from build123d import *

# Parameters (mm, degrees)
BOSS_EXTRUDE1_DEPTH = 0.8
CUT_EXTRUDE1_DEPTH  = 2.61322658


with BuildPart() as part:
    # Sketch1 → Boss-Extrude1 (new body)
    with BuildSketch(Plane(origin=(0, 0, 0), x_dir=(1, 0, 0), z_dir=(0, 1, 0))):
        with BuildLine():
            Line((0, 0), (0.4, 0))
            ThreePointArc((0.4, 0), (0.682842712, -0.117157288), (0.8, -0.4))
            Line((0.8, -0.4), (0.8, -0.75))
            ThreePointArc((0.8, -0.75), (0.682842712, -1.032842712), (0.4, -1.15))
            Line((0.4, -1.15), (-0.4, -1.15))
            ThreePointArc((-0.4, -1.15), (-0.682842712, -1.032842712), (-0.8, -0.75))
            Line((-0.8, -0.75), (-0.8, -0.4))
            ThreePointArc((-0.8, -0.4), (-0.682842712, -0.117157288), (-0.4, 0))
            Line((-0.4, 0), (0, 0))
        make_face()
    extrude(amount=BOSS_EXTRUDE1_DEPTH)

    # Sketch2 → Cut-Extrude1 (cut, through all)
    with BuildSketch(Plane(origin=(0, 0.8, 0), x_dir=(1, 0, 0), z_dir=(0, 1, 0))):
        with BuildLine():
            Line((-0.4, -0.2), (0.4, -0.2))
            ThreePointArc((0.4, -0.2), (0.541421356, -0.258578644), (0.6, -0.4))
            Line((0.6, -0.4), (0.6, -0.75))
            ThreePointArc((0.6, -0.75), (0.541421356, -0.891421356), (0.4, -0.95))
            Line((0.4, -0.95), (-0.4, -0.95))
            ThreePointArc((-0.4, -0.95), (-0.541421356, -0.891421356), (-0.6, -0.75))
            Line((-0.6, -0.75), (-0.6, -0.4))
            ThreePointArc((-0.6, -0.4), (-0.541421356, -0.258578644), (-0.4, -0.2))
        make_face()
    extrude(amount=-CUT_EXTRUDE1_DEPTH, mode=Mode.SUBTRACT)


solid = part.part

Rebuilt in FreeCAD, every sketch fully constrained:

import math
import FreeCAD as App
import Part
import Sketcher

V = App.Vector

doc = App.newDocument("Part")
body = doc.addObject("PartDesign::Body", "Body")

sketch1 = doc.addObject("Sketcher::SketchObject", "Sketch")
body.addObject(sketch1)
sketch1.AttachmentSupport = (doc.XZ_Plane, [""])
sketch1.MapMode = "FlatFace"
sketch1.addGeometry([
    Part.ArcOfCircle(Part.Circle(V(0.4, 0.4, 0), V(0, 0, 1), 0.4), math.radians(-90), math.radians(0)),
    Part.LineSegment(V(0.4, 0, 0), V(-0.4, 0, 0)),
    Part.ArcOfCircle(Part.Circle(V(-0.4, 0.4, 0), V(0, 0, 1), 0.4), math.radians(-180), math.radians(-90)),
    Part.LineSegment(V(-0.8, 0.4, 0), V(-0.8, 0.75, 0)),
    Part.ArcOfCircle(Part.Circle(V(-0.4, 0.75, 0), V(0, 0, 1), 0.4), math.radians(90), math.radians(180)),
    Part.LineSegment(V(-0.4, 1.15, 0), V(0.4, 1.15, 0)),
    Part.ArcOfCircle(Part.Circle(V(0.4, 0.75, 0), V(0, 0, 1), 0.4), math.radians(0), math.radians(90)),
    Part.LineSegment(V(0.8, 0.75, 0), V(0.8, 0.4, 0)),
], False)
sketch1.addConstraint([
    Sketcher.Constraint("Tangent", 0, 1, 1, 1),
    Sketcher.Constraint("Tangent", 1, 2, 2, 2),
    Sketcher.Constraint("Tangent", 2, 1, 3, 1),
    Sketcher.Constraint("Tangent", 3, 2, 4, 2),
    Sketcher.Constraint("Tangent", 4, 1, 5, 1),
    Sketcher.Constraint("Tangent", 5, 2, 6, 2),
    Sketcher.Constraint("Tangent", 6, 1, 7, 1),
    Sketcher.Constraint("Tangent", 7, 2, 0, 2),
    Sketcher.Constraint("Horizontal", 1),
    Sketcher.Constraint("Vertical", 3),
    Sketcher.Constraint("Horizontal", 5),
    Sketcher.Constraint("Vertical", 7),
    Sketcher.Constraint("Equal", 0, 2),
    Sketcher.Constraint("Equal", 2, 4),
    Sketcher.Constraint("Equal", 4, 6),
    Sketcher.Constraint("Symmetric", 0, 1, 1, 2, -1, 1),
    Sketcher.Constraint("Radius", 0, 0.4),
    Sketcher.Constraint("DistanceX", 1, 2, 1, 1, 0.8),
    Sketcher.Constraint("DistanceY", 3, 1, 3, 2, 0.35),
])
pad1 = doc.addObject("PartDesign::Pad", "Pad")
body.addObject(pad1)
pad1.Profile = sketch1
pad1.Length = 0.8
pad1.Reversed = True

sketch2 = doc.addObject("Sketcher::SketchObject", "Sketch001")
body.addObject(sketch2)
sketch2.AttachmentSupport = (doc.XZ_Plane, [""])
sketch2.MapMode = "FlatFace"
sketch2.AttachmentOffset = App.Placement(V(0, 0, -0.8), App.Rotation())
sketch2.addGeometry([
    Part.LineSegment(V(0.4, 0.2, 0), V(-0.4, 0.2, 0)),
    Part.ArcOfCircle(Part.Circle(V(-0.4, 0.4, 0), V(0, 0, 1), 0.2), math.radians(-180), math.radians(-90)),
    Part.LineSegment(V(-0.6, 0.4, 0), V(-0.6, 0.75, 0)),
    Part.ArcOfCircle(Part.Circle(V(-0.4, 0.75, 0), V(0, 0, 1), 0.2), math.radians(90), math.radians(180)),
    Part.LineSegment(V(-0.4, 0.95, 0), V(0.4, 0.95, 0)),
    Part.ArcOfCircle(Part.Circle(V(0.4, 0.75, 0), V(0, 0, 1), 0.2), math.radians(0), math.radians(90)),
    Part.LineSegment(V(0.6, 0.75, 0), V(0.6, 0.4, 0)),
    Part.ArcOfCircle(Part.Circle(V(0.4, 0.4, 0), V(0, 0, 1), 0.2), math.radians(-90), math.radians(0)),
], False)
sketch2.addConstraint([
    Sketcher.Constraint("Tangent", 0, 2, 1, 2),
    Sketcher.Constraint("Tangent", 1, 1, 2, 1),
    Sketcher.Constraint("Tangent", 2, 2, 3, 2),
    Sketcher.Constraint("Tangent", 3, 1, 4, 1),
    Sketcher.Constraint("Tangent", 4, 2, 5, 2),
    Sketcher.Constraint("Tangent", 5, 1, 6, 1),
    Sketcher.Constraint("Tangent", 6, 2, 7, 2),
    Sketcher.Constraint("Tangent", 7, 1, 0, 1),
    Sketcher.Constraint("Horizontal", 0),
    Sketcher.Constraint("Vertical", 2),
    Sketcher.Constraint("Horizontal", 4),
    Sketcher.Constraint("Vertical", 6),
    Sketcher.Constraint("Equal", 1, 3),
    Sketcher.Constraint("Equal", 3, 5),
    Sketcher.Constraint("Equal", 5, 7),
    Sketcher.Constraint("Radius", 1, 0.2),
    Sketcher.Constraint("DistanceX", 0, 2, 0, 1, 0.8),
    Sketcher.Constraint("DistanceY", 2, 1, 2, 2, 0.35),
    Sketcher.Constraint("DistanceX", 1, 3, -1, 1, 0.4),
    Sketcher.Constraint("DistanceY", -1, 1, 1, 3, 0.4),
])
pocket1 = doc.addObject("PartDesign::Pocket", "Pocket")
body.addObject(pocket1)
pocket1.Profile = sketch2
pocket1.Type = "ThroughAll"
pocket1.Reversed = True

doc.recompute()
